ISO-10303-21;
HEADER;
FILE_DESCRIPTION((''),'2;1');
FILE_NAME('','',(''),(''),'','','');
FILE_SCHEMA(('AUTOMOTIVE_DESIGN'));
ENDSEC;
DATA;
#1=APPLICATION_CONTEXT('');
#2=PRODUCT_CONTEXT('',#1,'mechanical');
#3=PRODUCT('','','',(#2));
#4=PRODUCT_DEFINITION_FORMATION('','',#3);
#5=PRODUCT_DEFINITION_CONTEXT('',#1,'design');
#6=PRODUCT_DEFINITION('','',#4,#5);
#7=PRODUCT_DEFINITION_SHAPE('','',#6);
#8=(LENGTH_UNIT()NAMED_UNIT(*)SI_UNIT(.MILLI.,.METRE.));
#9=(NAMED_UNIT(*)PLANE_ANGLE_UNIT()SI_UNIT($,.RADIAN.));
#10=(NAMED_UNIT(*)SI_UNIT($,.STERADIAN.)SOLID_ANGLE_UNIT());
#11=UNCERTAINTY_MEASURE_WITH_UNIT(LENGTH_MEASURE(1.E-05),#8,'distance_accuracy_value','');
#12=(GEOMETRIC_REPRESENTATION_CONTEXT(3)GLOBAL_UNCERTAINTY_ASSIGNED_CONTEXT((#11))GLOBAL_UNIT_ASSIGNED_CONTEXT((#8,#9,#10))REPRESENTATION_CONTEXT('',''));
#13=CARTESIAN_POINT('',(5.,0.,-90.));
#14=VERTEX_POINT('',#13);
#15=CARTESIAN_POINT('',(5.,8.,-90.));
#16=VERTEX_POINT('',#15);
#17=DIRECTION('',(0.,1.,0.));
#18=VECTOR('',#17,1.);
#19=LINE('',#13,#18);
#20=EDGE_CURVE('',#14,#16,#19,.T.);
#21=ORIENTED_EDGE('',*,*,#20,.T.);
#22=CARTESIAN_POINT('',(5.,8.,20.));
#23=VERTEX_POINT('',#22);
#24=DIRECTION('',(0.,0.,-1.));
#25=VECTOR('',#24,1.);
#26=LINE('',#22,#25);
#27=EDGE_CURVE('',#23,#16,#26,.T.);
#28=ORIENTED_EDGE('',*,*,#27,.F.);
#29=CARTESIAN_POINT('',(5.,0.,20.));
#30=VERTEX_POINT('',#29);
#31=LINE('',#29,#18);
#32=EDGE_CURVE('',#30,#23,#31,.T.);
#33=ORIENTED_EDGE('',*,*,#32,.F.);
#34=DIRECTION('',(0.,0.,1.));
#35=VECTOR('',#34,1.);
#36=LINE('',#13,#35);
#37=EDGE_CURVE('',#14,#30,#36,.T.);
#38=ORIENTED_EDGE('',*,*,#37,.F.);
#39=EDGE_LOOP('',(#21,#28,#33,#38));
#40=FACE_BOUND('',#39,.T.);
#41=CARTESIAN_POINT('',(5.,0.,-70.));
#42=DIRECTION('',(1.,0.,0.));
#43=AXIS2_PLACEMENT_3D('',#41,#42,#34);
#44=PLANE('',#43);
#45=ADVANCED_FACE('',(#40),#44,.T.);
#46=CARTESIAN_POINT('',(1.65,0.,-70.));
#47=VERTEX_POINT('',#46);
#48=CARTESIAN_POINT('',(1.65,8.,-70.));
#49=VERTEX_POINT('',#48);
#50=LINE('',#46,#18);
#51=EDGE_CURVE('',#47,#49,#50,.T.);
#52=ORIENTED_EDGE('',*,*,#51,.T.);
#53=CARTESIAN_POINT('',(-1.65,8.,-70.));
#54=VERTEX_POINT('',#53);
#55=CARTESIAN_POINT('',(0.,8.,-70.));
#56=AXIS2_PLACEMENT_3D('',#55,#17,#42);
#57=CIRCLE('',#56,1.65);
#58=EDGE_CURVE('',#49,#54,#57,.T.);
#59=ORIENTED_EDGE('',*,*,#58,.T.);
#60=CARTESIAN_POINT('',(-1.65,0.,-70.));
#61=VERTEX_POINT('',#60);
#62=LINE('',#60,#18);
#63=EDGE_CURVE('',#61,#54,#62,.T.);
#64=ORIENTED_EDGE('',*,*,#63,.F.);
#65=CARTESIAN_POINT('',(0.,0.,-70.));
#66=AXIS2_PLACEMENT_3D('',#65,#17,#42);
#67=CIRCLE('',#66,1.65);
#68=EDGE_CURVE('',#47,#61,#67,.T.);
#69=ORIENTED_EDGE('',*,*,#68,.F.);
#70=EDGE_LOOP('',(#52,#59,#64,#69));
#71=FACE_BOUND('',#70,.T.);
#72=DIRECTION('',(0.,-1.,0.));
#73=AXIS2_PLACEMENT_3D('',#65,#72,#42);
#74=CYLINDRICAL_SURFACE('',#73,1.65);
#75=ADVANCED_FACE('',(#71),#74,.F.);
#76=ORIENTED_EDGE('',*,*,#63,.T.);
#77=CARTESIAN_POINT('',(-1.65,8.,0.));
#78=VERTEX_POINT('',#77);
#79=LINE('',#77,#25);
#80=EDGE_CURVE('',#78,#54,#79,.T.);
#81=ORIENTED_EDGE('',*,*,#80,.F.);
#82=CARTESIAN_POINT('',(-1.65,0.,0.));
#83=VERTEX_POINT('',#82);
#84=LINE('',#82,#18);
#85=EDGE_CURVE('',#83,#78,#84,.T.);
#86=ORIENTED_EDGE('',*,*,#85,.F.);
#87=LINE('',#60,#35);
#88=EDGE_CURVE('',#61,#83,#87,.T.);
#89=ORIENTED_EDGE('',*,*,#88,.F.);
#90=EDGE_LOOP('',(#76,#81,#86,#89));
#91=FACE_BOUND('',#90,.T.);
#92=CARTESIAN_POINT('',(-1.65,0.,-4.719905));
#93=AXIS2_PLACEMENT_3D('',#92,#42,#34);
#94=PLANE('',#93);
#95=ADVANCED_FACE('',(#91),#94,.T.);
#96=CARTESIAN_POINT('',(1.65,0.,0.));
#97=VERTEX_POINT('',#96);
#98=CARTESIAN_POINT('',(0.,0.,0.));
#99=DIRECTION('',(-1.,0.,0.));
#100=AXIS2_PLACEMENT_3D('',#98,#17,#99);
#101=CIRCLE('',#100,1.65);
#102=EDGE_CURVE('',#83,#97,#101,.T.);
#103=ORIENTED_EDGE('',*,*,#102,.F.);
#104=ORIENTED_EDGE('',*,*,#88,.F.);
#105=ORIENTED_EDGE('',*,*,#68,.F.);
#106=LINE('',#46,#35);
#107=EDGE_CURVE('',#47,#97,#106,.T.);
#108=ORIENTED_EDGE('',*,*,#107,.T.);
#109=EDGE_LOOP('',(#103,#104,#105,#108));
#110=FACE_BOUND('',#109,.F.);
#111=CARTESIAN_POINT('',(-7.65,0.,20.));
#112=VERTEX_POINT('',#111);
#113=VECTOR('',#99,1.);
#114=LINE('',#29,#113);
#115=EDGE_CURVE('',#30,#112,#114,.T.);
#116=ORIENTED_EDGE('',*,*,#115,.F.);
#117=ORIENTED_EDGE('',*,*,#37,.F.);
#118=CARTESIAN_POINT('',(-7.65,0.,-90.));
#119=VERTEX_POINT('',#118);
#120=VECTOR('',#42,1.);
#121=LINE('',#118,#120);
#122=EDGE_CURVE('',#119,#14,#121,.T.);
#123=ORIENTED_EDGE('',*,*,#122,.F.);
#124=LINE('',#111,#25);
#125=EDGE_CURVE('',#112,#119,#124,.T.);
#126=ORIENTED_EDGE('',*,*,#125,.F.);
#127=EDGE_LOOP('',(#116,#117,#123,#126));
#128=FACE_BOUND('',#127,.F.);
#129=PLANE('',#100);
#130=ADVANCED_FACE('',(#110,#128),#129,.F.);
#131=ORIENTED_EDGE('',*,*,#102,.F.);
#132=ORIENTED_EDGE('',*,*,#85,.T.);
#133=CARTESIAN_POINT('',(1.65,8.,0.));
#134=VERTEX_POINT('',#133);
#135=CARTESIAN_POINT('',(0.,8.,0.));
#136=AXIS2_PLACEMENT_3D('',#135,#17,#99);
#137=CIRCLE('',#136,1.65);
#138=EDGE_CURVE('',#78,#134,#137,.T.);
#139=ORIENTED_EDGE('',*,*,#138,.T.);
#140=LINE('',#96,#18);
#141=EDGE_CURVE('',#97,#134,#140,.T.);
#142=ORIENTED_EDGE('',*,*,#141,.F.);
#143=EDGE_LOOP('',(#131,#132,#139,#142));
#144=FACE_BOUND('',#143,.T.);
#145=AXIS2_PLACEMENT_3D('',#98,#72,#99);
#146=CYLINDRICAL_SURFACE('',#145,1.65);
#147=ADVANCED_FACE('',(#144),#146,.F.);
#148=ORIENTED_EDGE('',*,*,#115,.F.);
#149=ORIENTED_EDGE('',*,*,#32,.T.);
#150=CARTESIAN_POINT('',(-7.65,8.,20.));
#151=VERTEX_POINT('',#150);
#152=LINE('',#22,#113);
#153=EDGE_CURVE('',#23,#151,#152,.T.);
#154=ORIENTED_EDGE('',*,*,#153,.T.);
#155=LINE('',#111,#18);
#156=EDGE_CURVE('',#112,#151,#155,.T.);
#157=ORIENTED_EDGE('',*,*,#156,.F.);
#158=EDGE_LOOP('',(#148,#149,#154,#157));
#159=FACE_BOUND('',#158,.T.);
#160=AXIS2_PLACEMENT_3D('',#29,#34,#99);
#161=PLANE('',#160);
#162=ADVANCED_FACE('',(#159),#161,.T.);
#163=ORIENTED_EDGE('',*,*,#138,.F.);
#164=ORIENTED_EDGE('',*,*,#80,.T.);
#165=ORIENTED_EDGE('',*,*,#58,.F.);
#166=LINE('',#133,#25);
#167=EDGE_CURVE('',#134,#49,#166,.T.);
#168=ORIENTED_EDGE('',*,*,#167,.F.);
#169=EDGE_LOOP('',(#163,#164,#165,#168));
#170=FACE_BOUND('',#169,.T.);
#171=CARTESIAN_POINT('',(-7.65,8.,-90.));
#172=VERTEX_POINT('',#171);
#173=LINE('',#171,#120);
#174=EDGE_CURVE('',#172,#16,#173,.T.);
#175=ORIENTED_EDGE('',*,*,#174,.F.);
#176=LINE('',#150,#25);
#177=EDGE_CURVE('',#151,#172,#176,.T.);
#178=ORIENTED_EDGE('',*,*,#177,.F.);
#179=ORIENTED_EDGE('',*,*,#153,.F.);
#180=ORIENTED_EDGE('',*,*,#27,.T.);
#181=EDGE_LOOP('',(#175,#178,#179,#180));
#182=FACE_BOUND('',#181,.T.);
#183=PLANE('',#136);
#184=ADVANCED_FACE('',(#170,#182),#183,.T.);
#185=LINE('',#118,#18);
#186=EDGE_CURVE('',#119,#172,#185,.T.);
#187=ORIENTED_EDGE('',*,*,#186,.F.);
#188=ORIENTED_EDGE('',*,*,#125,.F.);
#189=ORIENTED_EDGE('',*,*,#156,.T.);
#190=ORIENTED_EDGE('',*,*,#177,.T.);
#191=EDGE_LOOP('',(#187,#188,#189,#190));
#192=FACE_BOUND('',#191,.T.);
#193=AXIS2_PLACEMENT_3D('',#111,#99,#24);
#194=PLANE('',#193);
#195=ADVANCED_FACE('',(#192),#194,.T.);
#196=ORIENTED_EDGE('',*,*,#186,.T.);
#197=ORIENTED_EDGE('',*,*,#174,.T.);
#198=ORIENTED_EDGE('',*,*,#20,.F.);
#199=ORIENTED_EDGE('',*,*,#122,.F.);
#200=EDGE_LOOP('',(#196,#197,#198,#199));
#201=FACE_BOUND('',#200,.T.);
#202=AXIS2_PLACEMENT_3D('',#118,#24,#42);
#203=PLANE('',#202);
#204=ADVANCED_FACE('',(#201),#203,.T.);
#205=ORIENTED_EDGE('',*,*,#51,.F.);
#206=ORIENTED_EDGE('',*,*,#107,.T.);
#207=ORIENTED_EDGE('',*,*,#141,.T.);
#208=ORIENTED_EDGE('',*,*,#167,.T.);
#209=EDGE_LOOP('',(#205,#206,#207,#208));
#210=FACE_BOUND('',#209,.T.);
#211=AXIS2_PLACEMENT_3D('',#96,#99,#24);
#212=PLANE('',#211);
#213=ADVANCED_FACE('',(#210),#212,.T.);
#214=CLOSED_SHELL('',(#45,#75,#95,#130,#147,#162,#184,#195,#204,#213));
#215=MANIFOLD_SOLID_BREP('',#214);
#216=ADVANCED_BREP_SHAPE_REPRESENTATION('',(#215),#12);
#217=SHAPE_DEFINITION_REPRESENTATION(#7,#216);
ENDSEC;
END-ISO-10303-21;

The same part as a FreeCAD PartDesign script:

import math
import FreeCAD as App
import Part
import Sketcher
from FreeCAD import Vector
Q = App.Units.Quantity

doc = App.newDocument("Part")
params = doc.addObject("Spreadsheet::Sheet", "Params")
for row, (alias, value) in enumerate([
    ("sketch1_height", "70 mm"),
    ("sketch1_radius", "1.65 mm"),
    ("pad1_length", "8 mm"),
], start=1):
    params.set(f"A{row}", alias)
    params.set(f"B{row}", "=" + value)
    params.setAlias(f"B{row}", alias)

body = doc.addObject("PartDesign::Body", "Body")

sketch1 = body.newObject("Sketcher::SketchObject", "Sketch")
sketch1.AttachmentSupport = (doc.getObject("XZ_Plane"), [""])
sketch1.MapMode = "FlatFace"
sketch1.addGeometry([
    Part.LineSegment(Vector(5, -90, 0), Vector(-7.7, -90, 0)),
    Part.LineSegment(Vector(-7.7, -90, 0), Vector(-7.7, 20, 0)),
    Part.LineSegment(Vector(-7.7, 20, 0), Vector(5, 20, 0)),
    Part.LineSegment(Vector(5, 20, 0), Vector(5, -90, 0)),
    Part.ArcOfCircle(Part.Circle(Vector(0, 0, 0), Vector(0, 0, 1), 1.6), math.radians(0), math.radians(180)),
    Part.LineSegment(Vector(-1.6, 0, 0), Vector(-1.6, -70, 0)),
    Part.ArcOfCircle(Part.Circle(Vector(0, -70, 0), Vector(0, 0, 1), 1.6), math.radians(180), math.radians(360)),
    Part.LineSegment(Vector(1.6, -70, 0), Vector(1.6, 0, 0)),
], False)
sketch1.addConstraint([
    Sketcher.Constraint("Coincident", 0, 2, 1, 1),
    Sketcher.Constraint("Coincident", 1, 2, 2, 1),
    Sketcher.Constraint("Coincident", 2, 2, 3, 1),
    Sketcher.Constraint("Coincident", 3, 2, 0, 1),
    Sketcher.Constraint("Tangent", 4, 2, 5, 1),
    Sketcher.Constraint("Tangent", 5, 2, 6, 1),
    Sketcher.Constraint("Tangent", 6, 2, 7, 1),
    Sketcher.Constraint("Tangent", 7, 2, 4, 1),
    Sketcher.Constraint("Horizontal", 0),
    Sketcher.Constraint("Vertical", 1),
    Sketcher.Constraint("Horizontal", 2),
    Sketcher.Constraint("Vertical", 3),
    Sketcher.Constraint("Vertical", 5),
    Sketcher.Constraint("Vertical", 7),
    Sketcher.Constraint("Coincident", 4, 3, -1, 1),
    Sketcher.Constraint("DistanceY", 5, 2, 5, 1, Q("70 mm")),
    Sketcher.Constraint("Radius", 4, Q("1.65 mm")),
    Sketcher.Constraint("DistanceY", -1, 1, 1, 2, Q("20 mm")),
    Sketcher.Constraint("DistanceY", 0, 2, 6, 3, Q("20 mm")),
    Sketcher.Constraint("DistanceX", 1, 2, 4, 2, Q("6 mm")),
    Sketcher.Constraint("DistanceX", -1, 1, 2, 2, Q("5 mm")),
])
sketch1.setExpression("Constraints[15]", "Params.sketch1_height")
sketch1.setExpression("Constraints[16]", "Params.sketch1_radius")
pad1 = body.newObject("PartDesign::Pad", "Pad")
pad1.Profile = sketch1
pad1.setExpression("Length", "Params.pad1_length")
pad1.Reversed = True

doc.recompute()
